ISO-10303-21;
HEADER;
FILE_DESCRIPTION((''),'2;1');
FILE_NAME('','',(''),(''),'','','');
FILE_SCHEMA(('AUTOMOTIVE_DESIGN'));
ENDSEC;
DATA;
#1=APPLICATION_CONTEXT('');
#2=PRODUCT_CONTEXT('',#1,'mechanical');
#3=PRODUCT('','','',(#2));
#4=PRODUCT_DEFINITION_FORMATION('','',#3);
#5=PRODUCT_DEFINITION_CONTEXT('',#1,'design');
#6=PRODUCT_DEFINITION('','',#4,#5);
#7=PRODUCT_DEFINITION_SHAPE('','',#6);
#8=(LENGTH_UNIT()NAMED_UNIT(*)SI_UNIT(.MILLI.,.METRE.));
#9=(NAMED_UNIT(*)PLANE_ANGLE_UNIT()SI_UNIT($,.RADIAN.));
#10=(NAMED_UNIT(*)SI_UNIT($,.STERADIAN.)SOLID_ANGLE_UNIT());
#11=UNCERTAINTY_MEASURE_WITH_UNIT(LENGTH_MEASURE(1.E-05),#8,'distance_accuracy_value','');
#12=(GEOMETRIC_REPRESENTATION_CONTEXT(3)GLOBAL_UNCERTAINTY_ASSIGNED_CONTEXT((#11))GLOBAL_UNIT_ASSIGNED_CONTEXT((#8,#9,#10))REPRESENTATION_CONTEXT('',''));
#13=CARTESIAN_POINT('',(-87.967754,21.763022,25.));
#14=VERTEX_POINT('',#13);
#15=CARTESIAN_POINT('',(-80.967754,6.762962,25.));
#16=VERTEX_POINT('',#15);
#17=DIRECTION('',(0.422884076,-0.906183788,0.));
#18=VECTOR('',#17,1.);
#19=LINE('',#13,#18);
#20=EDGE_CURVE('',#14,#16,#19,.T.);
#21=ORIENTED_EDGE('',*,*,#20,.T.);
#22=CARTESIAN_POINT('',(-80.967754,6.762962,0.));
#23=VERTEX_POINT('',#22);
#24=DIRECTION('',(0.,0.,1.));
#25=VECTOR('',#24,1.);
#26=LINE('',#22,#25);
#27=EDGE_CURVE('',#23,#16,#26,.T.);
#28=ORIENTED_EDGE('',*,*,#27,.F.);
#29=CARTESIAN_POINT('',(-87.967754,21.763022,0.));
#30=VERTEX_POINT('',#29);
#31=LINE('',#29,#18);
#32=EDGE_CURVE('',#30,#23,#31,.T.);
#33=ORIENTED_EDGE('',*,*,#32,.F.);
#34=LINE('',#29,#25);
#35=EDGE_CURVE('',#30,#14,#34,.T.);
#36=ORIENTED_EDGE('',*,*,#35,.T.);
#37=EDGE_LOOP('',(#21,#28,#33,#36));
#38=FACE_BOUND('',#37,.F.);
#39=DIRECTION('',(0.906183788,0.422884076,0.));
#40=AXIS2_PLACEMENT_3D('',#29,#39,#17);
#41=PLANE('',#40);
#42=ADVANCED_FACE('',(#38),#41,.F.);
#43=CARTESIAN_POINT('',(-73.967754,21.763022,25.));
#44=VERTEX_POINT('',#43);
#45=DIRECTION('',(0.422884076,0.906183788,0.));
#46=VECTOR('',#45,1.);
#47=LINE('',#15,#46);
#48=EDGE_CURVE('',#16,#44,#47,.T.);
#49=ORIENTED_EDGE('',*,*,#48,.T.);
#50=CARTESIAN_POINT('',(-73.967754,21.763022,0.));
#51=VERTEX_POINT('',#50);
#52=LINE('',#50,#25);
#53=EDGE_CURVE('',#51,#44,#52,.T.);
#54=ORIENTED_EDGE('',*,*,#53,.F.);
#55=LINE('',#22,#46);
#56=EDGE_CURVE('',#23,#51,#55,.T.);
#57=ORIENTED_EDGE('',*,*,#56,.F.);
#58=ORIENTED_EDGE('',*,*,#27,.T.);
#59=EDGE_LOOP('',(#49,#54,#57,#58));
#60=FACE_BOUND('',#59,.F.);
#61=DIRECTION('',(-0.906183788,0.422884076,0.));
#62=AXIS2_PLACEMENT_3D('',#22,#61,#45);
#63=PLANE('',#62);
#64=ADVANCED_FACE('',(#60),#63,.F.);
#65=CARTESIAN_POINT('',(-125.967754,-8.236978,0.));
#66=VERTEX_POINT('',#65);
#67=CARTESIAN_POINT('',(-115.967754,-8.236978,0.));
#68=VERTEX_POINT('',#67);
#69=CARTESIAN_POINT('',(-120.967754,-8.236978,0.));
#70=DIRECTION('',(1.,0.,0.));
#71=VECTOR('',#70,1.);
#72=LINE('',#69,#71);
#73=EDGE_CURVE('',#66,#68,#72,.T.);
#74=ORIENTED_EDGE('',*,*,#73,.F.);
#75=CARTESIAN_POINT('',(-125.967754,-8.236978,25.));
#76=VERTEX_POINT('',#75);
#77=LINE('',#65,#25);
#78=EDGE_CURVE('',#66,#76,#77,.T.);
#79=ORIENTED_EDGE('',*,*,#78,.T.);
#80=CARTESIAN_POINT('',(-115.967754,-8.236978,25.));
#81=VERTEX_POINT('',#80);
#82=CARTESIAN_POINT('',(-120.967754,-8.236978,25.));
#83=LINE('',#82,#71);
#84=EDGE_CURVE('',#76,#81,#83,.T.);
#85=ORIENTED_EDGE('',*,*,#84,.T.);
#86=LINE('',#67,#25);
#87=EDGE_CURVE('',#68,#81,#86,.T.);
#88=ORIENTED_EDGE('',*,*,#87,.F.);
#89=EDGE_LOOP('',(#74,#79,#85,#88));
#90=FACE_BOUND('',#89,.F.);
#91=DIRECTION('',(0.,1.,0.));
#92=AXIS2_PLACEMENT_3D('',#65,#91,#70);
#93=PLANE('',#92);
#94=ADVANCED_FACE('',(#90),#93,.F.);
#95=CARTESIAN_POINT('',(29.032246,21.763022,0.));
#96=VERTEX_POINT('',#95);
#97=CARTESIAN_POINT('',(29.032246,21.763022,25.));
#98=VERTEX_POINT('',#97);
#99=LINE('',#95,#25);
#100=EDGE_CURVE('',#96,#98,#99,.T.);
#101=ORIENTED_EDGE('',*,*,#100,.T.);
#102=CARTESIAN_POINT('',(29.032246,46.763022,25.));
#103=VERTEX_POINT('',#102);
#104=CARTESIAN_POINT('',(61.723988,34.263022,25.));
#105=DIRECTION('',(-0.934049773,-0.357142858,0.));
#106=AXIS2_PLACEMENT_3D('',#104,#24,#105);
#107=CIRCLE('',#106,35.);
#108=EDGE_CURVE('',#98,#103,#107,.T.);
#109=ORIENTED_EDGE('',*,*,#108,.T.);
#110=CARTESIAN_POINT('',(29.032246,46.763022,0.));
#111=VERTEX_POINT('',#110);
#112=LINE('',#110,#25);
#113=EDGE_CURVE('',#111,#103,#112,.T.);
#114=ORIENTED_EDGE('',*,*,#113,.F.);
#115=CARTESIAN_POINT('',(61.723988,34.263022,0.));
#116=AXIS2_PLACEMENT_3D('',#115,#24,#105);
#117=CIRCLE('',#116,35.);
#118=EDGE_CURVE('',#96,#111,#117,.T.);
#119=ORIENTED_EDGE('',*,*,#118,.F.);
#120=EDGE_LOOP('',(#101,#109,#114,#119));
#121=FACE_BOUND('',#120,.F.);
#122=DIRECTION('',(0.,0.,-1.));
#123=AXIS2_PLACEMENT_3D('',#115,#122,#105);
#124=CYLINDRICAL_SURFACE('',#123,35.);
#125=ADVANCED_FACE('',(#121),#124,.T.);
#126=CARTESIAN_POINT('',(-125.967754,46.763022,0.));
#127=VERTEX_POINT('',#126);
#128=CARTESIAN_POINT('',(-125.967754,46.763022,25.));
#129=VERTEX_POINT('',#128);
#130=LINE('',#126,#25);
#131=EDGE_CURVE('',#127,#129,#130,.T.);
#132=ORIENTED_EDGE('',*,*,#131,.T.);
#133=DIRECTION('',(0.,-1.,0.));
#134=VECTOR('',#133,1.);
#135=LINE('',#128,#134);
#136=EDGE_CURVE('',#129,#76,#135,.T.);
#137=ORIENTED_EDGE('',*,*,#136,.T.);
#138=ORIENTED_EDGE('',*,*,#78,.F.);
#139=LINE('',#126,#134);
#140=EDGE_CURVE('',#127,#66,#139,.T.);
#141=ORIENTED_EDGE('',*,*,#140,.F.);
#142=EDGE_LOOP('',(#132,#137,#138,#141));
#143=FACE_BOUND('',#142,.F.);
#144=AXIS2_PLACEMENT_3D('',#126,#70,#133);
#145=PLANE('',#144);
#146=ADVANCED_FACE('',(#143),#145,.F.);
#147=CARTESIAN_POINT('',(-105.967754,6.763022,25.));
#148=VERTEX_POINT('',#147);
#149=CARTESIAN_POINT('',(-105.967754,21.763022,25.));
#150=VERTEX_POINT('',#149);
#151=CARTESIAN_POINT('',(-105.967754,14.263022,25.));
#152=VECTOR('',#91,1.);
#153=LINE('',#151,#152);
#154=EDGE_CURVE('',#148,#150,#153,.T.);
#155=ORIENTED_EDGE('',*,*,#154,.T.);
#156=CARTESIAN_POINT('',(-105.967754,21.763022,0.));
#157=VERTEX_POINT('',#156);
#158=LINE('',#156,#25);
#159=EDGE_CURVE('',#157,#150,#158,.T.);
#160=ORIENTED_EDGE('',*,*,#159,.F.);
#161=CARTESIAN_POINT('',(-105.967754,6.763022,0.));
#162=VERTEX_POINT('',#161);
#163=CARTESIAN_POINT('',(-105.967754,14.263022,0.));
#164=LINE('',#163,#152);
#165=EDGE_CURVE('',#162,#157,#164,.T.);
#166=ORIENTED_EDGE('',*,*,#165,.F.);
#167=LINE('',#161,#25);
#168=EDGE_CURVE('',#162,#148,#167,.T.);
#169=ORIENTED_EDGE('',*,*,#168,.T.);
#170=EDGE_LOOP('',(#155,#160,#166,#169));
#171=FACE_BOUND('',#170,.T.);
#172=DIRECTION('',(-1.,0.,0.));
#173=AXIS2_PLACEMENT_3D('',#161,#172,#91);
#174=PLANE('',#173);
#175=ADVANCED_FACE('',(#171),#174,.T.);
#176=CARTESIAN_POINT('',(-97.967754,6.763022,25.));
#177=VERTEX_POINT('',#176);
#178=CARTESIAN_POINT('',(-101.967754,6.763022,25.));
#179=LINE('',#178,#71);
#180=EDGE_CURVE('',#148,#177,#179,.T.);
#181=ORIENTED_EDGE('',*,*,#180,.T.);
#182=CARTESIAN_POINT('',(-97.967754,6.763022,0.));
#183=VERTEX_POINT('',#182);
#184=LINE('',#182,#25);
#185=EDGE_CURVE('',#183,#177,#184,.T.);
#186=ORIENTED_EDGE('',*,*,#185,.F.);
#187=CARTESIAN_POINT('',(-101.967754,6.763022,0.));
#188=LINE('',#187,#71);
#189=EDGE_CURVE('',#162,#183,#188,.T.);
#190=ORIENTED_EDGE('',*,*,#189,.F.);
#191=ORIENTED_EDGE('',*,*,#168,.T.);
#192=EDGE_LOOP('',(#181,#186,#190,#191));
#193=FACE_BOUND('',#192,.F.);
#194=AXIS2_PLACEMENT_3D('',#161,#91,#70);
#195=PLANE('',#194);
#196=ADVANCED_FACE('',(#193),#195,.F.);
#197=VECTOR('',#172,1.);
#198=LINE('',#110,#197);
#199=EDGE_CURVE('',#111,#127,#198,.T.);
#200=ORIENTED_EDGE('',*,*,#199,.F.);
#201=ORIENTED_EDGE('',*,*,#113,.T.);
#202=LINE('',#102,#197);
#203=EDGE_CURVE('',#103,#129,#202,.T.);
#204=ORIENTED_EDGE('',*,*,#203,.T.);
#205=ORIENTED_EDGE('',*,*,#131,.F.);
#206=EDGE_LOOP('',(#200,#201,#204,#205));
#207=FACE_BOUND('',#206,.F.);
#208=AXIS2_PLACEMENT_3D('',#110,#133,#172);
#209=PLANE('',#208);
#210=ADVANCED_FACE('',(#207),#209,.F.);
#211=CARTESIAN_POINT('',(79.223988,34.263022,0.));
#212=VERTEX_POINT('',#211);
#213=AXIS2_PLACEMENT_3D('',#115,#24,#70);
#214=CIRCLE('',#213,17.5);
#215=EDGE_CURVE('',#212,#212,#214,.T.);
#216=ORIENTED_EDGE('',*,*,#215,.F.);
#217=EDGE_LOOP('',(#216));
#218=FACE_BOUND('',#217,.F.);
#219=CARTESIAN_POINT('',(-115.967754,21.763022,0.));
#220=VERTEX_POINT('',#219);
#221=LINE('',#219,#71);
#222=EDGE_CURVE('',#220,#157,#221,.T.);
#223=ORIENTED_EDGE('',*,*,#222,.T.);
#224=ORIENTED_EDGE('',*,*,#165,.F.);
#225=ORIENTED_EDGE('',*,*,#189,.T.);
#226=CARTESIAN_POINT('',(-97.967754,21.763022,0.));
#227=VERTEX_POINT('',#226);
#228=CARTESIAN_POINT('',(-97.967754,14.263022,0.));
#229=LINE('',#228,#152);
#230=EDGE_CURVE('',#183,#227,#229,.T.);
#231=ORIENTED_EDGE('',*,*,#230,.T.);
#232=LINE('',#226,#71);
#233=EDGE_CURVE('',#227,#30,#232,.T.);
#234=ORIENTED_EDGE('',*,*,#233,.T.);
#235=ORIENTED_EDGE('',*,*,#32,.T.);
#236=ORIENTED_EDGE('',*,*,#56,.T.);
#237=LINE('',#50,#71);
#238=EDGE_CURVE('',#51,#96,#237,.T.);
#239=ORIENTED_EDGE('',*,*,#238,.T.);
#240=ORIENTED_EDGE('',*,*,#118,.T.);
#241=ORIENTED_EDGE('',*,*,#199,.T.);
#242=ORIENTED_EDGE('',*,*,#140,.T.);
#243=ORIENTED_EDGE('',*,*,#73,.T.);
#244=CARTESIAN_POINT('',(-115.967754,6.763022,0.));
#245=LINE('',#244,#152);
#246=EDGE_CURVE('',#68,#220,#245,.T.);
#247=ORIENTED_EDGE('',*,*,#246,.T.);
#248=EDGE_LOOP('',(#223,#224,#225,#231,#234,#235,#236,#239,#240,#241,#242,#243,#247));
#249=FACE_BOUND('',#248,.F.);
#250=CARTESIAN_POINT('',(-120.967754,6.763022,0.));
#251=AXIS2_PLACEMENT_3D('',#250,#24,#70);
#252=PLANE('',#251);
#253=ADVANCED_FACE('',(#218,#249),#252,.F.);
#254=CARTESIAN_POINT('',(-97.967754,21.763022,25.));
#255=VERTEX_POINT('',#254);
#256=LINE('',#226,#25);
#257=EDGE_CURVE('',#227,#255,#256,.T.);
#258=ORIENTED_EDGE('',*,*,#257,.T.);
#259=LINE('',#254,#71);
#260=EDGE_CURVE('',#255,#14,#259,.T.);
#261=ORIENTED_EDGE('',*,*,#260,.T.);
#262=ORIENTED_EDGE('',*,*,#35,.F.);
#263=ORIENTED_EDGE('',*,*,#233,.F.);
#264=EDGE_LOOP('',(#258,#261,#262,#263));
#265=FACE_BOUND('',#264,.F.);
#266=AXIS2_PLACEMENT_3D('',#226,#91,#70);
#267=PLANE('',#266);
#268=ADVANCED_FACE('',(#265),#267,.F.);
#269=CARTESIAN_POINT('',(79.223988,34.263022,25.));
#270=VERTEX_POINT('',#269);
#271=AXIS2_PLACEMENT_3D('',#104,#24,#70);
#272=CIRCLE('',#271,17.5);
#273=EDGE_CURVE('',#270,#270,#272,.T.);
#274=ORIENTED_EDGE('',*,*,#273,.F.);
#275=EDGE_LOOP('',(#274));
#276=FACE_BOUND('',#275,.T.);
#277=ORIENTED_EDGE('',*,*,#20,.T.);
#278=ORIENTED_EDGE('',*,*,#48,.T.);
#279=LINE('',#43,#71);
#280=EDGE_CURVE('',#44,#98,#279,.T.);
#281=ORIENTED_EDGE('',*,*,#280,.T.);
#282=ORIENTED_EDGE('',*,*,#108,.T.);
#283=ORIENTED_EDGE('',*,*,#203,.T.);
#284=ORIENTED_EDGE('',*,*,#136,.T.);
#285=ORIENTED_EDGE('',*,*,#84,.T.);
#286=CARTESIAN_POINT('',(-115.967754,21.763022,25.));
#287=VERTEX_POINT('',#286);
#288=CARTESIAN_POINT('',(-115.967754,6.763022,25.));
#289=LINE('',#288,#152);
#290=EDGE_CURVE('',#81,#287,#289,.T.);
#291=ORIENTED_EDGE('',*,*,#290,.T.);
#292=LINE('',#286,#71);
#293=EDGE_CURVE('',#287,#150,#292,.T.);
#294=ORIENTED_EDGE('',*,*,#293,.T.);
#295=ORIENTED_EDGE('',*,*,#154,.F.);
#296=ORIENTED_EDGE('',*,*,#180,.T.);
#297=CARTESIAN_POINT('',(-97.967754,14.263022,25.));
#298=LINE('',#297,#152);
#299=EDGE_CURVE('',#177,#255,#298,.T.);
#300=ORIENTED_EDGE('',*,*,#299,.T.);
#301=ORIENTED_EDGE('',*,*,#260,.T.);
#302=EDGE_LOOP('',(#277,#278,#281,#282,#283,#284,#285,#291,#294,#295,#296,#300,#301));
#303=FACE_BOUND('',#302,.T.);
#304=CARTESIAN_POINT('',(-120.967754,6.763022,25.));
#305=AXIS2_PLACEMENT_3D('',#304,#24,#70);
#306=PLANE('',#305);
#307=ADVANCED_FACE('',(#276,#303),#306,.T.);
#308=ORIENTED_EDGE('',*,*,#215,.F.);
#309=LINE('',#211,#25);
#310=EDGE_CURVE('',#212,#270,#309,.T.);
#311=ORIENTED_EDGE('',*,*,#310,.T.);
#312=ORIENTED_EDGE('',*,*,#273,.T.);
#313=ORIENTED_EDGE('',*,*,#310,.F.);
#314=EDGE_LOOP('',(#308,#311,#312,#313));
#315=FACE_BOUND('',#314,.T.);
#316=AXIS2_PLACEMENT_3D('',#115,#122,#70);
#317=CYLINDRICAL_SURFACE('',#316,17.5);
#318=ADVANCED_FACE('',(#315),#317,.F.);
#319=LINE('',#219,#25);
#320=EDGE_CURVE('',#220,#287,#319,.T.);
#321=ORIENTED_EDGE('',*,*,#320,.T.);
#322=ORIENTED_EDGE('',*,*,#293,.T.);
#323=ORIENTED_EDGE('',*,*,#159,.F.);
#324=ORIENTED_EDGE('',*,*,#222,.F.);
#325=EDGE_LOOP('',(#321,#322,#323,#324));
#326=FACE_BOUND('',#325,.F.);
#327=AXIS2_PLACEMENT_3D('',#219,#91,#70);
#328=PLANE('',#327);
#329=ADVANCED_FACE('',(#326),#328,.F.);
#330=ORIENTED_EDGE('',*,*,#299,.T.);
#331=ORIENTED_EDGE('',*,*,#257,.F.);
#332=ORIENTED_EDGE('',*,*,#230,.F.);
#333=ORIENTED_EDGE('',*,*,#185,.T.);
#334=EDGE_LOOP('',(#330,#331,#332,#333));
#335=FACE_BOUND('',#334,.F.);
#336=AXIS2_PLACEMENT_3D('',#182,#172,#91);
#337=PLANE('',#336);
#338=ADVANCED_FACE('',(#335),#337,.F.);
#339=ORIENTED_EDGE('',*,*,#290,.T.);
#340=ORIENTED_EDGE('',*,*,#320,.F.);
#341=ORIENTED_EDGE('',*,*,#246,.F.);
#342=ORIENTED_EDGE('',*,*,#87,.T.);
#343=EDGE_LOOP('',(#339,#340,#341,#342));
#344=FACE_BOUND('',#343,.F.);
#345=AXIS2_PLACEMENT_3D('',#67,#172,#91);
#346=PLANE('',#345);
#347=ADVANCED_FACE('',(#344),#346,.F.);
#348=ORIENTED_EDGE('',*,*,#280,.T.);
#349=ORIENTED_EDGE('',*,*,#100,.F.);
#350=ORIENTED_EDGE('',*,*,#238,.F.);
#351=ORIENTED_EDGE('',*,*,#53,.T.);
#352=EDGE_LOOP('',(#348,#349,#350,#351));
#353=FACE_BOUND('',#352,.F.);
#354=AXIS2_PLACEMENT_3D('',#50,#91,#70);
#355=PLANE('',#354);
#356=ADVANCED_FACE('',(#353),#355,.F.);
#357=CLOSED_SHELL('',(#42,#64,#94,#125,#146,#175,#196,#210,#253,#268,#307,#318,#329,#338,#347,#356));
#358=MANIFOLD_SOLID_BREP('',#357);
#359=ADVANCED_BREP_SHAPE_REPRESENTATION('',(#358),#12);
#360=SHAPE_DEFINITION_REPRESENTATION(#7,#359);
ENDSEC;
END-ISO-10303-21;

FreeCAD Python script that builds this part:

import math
import FreeCAD as App
import Part
import Sketcher

doc = App.newDocument("Part")
params = doc.addObject("Spreadsheet::Sheet", "Params")
for row, (alias, value) in enumerate([
    ("sketch1_diameter", "35 mm"),
    ("sketch1_radius", "35 mm"),
    ("sketch1_width", "10 mm"),
    ("sketch1_width2", "8 mm"),
    ("sketch1_width3", "103 mm"),
    ("pad1_length", "25 mm"),
], start=1):
    params.set(f"A{row}", alias)
    params.set(f"B{row}", "=" + value)
    params.setAlias(f"B{row}", alias)

body = doc.addObject("PartDesign::Body", "Body")

# Sketch on XY plane
sketch1 = doc.addObject("Sketcher::SketchObject", "Sketch")
body.addObject(sketch1)
sketch1.AttachmentSupport = (doc.XY_Plane, [""])
sketch1.MapMode = "FlatFace"
sketch1.addGeometry([
    Part.LineSegment(App.Vector(-126, -8, 0), App.Vector(-116, -8, 0)),  # 0
    Part.LineSegment(App.Vector(-116, -8, 0), App.Vector(-116, 22, 0)),  # 1
    Part.LineSegment(App.Vector(-116, 22, 0), App.Vector(-106, 22, 0)),  # 2
    Part.LineSegment(App.Vector(-106, 22, 0), App.Vector(-106, 7, 0)),  # 3
    Part.LineSegment(App.Vector(-106, 7, 0), App.Vector(-98, 7, 0)),  # 4
    Part.LineSegment(App.Vector(-98, 7, 0), App.Vector(-98, 22, 0)),  # 5
    Part.LineSegment(App.Vector(-98, 22, 0), App.Vector(-88, 22, 0)),  # 6
    Part.LineSegment(App.Vector(-88, 22, 0), App.Vector(-81, 7, 0)),  # 7
    Part.LineSegment(App.Vector(-81, 7, 0), App.Vector(-74, 22, 0)),  # 8
    Part.LineSegment(App.Vector(-74, 22, 0), App.Vector(29, 22, 0)),  # 9
    Part.ArcOfCircle(Part.Circle(App.Vector(62, 34, 0), App.Vector(0, 0, 1), 35), math.radians(-159), math.radians(159)),  # 10
    Part.LineSegment(App.Vector(29, 47, 0), App.Vector(-126, 47, 0)),  # 11
    Part.LineSegment(App.Vector(-126, 47, 0), App.Vector(-126, -8, 0)),  # 12
    Part.Circle(App.Vector(62, 34, 0), App.Vector(0, 0, 1), 18),  # 13
], False)
sketch1.addConstraint([
    Sketcher.Constraint("Coincident", 0, 2, 1, 1),
    Sketcher.Constraint("Coincident", 1, 2, 2, 1),
    Sketcher.Constraint("Coincident", 2, 2, 3, 1),
    Sketcher.Constraint("Coincident", 3, 2, 4, 1),
    Sketcher.Constraint("Coincident", 4, 2, 5, 1),
    Sketcher.Constraint("Coincident", 5, 2, 6, 1),
    Sketcher.Constraint("Coincident", 6, 2, 7, 1),
    Sketcher.Constraint("Coincident", 7, 2, 8, 1),
    Sketcher.Constraint("Coincident", 8, 2, 9, 1),
    Sketcher.Constraint("Coincident", 9, 2, 10, 1),
    Sketcher.Constraint("Coincident", 10, 2, 11, 1),
    Sketcher.Constraint("Coincident", 11, 2, 12, 1),
    Sketcher.Constraint("Coincident", 12, 2, 0, 1),
    Sketcher.Constraint("Horizontal", 0),
    Sketcher.Constraint("Vertical", 1),
    Sketcher.Constraint("Horizontal", 2),
    Sketcher.Constraint("Vertical", 3),
    Sketcher.Constraint("Horizontal", 4),
    Sketcher.Constraint("Vertical", 5),
    Sketcher.Constraint("Horizontal", 6),
    Sketcher.Constraint("Horizontal", 9),
    Sketcher.Constraint("Horizontal", 11),
    Sketcher.Constraint("Vertical", 12),
    Sketcher.Constraint("Coincident", 13, 3, 10, 3),
    Sketcher.Constraint("Horizontal", 2, 2, 5, 2),
    Sketcher.Constraint("Horizontal", 6, 2, 8, 2),
    Sketcher.Constraint("Vertical", 9, 2, 10, 2),
    Sketcher.Constraint("Equal", 0, 2),
    Sketcher.Constraint("Equal", 2, 6),
    Sketcher.Constraint("Equal", 7, 8),
    Sketcher.Constraint("Diameter", 13, 35.0),
    Sketcher.Constraint("Radius", 10, 35.0),
    Sketcher.Constraint("DistanceX", 0, 1, 0, 2, 10.0),
    Sketcher.Constraint("DistanceX", 4, 1, 4, 2, 8.0),
    Sketcher.Constraint("DistanceX", 9, 1, 9, 2, 103.0),
    Sketcher.Constraint("DistanceX", 11, 2, 11, 1, 155.0),
    Sketcher.Constraint("DistanceY", 1, 1, 1, 2, 30.0),
    Sketcher.Constraint("DistanceY", 3, 2, 3, 1, 15.0),
    Sketcher.Constraint("DistanceY", 12, 2, 12, 1, 55.0),
    Sketcher.Constraint("Distance", 7, 16.553),
    Sketcher.Constraint("DistanceX", -1, 1, 10, 3, 61.723988),
    Sketcher.Constraint("DistanceY", -1, 1, 1, 2, 21.763022),
])
sketch1.setExpression("Constraints[30]", "Params.sketch1_diameter")
sketch1.setExpression("Constraints[31]", "Params.sketch1_radius")
sketch1.setExpression("Constraints[32]", "Params.sketch1_width")
sketch1.setExpression("Constraints[33]", "Params.sketch1_width2")
sketch1.setExpression("Constraints[34]", "Params.sketch1_width3")
pad1 = doc.addObject("PartDesign::Pad", "Pad")
body.addObject(pad1)
pad1.Profile = sketch1
pad1.setExpression("Length", "Params.pad1_length")

doc.recompute()
